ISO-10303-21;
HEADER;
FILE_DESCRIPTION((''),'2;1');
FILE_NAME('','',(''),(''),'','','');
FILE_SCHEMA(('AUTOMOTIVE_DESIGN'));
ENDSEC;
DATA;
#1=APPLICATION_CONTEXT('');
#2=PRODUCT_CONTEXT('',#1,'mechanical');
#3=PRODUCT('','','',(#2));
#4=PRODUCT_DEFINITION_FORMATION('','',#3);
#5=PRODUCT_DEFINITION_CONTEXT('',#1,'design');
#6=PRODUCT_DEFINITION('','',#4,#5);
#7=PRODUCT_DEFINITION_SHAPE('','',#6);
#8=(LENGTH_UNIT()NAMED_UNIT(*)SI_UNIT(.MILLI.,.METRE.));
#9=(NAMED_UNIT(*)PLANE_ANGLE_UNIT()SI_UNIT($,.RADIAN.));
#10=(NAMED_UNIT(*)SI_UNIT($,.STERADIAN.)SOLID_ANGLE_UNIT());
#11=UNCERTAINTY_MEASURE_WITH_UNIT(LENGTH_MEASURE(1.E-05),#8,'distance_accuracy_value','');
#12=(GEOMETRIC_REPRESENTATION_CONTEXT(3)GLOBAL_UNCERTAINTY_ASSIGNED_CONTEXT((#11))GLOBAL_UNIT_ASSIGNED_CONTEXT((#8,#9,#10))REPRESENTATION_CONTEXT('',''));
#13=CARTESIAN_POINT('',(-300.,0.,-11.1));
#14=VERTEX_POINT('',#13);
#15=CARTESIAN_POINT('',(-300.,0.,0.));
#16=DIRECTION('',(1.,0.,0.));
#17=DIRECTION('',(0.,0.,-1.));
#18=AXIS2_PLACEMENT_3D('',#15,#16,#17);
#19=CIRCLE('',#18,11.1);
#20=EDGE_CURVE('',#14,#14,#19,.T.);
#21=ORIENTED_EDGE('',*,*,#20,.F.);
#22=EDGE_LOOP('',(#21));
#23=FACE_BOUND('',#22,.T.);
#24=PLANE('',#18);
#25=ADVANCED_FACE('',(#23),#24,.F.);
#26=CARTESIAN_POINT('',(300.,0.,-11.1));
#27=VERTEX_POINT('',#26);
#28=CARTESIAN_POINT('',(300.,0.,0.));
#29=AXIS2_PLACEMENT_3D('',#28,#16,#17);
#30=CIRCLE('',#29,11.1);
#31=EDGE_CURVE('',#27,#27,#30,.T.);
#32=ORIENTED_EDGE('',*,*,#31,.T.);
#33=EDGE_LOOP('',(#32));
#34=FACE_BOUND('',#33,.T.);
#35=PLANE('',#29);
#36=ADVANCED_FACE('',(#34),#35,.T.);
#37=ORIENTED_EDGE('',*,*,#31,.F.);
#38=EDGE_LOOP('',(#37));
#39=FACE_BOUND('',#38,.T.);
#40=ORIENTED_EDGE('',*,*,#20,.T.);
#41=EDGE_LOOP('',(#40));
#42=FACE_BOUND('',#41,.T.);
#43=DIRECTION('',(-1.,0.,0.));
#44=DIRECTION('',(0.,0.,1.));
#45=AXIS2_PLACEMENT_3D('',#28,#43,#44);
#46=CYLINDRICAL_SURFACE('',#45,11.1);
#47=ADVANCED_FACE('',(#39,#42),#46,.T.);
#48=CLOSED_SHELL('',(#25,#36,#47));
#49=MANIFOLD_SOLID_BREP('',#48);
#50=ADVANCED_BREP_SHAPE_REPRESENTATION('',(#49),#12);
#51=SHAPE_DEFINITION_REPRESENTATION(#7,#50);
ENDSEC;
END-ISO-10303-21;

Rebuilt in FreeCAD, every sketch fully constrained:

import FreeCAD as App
import Part
import Sketcher

doc = App.newDocument("Part")
params = doc.addObject("Spreadsheet::Sheet", "Params")
for row, (alias, value) in enumerate([
    ("sketch1_diameter", "22.2 mm"),
    ("pad1_length", "600 mm"),
], start=1):
    params.set(f"A{row}", alias)
    params.set(f"B{row}", "=" + value)
    params.setAlias(f"B{row}", alias)

body = doc.addObject("PartDesign::Body", "Body")

sketch1 = body.newObject("Sketcher::SketchObject", "Sketch")
sketch1.AttachmentSupport = (doc.getObject("YZ_Plane"), [""])
sketch1.MapMode = "FlatFace"
sketch1.addGeometry(Part.Circle(App.Vector(0, 0, 0), App.Vector(0, 0, 1), 11), False)
sketch1.addConstraint(Sketcher.Constraint("Coincident", 0, 3, -1, 1))
sketch1.addConstraint(Sketcher.Constraint("Diameter", 0, 22.2))
sketch1.setExpression("Constraints[1]", "Params.sketch1_diameter")
pad1 = body.newObject("PartDesign::Pad", "Pad")
pad1.Profile = sketch1
pad1.setExpression("Length", "Params.pad1_length")
pad1.Midplane = True

doc.recompute()
